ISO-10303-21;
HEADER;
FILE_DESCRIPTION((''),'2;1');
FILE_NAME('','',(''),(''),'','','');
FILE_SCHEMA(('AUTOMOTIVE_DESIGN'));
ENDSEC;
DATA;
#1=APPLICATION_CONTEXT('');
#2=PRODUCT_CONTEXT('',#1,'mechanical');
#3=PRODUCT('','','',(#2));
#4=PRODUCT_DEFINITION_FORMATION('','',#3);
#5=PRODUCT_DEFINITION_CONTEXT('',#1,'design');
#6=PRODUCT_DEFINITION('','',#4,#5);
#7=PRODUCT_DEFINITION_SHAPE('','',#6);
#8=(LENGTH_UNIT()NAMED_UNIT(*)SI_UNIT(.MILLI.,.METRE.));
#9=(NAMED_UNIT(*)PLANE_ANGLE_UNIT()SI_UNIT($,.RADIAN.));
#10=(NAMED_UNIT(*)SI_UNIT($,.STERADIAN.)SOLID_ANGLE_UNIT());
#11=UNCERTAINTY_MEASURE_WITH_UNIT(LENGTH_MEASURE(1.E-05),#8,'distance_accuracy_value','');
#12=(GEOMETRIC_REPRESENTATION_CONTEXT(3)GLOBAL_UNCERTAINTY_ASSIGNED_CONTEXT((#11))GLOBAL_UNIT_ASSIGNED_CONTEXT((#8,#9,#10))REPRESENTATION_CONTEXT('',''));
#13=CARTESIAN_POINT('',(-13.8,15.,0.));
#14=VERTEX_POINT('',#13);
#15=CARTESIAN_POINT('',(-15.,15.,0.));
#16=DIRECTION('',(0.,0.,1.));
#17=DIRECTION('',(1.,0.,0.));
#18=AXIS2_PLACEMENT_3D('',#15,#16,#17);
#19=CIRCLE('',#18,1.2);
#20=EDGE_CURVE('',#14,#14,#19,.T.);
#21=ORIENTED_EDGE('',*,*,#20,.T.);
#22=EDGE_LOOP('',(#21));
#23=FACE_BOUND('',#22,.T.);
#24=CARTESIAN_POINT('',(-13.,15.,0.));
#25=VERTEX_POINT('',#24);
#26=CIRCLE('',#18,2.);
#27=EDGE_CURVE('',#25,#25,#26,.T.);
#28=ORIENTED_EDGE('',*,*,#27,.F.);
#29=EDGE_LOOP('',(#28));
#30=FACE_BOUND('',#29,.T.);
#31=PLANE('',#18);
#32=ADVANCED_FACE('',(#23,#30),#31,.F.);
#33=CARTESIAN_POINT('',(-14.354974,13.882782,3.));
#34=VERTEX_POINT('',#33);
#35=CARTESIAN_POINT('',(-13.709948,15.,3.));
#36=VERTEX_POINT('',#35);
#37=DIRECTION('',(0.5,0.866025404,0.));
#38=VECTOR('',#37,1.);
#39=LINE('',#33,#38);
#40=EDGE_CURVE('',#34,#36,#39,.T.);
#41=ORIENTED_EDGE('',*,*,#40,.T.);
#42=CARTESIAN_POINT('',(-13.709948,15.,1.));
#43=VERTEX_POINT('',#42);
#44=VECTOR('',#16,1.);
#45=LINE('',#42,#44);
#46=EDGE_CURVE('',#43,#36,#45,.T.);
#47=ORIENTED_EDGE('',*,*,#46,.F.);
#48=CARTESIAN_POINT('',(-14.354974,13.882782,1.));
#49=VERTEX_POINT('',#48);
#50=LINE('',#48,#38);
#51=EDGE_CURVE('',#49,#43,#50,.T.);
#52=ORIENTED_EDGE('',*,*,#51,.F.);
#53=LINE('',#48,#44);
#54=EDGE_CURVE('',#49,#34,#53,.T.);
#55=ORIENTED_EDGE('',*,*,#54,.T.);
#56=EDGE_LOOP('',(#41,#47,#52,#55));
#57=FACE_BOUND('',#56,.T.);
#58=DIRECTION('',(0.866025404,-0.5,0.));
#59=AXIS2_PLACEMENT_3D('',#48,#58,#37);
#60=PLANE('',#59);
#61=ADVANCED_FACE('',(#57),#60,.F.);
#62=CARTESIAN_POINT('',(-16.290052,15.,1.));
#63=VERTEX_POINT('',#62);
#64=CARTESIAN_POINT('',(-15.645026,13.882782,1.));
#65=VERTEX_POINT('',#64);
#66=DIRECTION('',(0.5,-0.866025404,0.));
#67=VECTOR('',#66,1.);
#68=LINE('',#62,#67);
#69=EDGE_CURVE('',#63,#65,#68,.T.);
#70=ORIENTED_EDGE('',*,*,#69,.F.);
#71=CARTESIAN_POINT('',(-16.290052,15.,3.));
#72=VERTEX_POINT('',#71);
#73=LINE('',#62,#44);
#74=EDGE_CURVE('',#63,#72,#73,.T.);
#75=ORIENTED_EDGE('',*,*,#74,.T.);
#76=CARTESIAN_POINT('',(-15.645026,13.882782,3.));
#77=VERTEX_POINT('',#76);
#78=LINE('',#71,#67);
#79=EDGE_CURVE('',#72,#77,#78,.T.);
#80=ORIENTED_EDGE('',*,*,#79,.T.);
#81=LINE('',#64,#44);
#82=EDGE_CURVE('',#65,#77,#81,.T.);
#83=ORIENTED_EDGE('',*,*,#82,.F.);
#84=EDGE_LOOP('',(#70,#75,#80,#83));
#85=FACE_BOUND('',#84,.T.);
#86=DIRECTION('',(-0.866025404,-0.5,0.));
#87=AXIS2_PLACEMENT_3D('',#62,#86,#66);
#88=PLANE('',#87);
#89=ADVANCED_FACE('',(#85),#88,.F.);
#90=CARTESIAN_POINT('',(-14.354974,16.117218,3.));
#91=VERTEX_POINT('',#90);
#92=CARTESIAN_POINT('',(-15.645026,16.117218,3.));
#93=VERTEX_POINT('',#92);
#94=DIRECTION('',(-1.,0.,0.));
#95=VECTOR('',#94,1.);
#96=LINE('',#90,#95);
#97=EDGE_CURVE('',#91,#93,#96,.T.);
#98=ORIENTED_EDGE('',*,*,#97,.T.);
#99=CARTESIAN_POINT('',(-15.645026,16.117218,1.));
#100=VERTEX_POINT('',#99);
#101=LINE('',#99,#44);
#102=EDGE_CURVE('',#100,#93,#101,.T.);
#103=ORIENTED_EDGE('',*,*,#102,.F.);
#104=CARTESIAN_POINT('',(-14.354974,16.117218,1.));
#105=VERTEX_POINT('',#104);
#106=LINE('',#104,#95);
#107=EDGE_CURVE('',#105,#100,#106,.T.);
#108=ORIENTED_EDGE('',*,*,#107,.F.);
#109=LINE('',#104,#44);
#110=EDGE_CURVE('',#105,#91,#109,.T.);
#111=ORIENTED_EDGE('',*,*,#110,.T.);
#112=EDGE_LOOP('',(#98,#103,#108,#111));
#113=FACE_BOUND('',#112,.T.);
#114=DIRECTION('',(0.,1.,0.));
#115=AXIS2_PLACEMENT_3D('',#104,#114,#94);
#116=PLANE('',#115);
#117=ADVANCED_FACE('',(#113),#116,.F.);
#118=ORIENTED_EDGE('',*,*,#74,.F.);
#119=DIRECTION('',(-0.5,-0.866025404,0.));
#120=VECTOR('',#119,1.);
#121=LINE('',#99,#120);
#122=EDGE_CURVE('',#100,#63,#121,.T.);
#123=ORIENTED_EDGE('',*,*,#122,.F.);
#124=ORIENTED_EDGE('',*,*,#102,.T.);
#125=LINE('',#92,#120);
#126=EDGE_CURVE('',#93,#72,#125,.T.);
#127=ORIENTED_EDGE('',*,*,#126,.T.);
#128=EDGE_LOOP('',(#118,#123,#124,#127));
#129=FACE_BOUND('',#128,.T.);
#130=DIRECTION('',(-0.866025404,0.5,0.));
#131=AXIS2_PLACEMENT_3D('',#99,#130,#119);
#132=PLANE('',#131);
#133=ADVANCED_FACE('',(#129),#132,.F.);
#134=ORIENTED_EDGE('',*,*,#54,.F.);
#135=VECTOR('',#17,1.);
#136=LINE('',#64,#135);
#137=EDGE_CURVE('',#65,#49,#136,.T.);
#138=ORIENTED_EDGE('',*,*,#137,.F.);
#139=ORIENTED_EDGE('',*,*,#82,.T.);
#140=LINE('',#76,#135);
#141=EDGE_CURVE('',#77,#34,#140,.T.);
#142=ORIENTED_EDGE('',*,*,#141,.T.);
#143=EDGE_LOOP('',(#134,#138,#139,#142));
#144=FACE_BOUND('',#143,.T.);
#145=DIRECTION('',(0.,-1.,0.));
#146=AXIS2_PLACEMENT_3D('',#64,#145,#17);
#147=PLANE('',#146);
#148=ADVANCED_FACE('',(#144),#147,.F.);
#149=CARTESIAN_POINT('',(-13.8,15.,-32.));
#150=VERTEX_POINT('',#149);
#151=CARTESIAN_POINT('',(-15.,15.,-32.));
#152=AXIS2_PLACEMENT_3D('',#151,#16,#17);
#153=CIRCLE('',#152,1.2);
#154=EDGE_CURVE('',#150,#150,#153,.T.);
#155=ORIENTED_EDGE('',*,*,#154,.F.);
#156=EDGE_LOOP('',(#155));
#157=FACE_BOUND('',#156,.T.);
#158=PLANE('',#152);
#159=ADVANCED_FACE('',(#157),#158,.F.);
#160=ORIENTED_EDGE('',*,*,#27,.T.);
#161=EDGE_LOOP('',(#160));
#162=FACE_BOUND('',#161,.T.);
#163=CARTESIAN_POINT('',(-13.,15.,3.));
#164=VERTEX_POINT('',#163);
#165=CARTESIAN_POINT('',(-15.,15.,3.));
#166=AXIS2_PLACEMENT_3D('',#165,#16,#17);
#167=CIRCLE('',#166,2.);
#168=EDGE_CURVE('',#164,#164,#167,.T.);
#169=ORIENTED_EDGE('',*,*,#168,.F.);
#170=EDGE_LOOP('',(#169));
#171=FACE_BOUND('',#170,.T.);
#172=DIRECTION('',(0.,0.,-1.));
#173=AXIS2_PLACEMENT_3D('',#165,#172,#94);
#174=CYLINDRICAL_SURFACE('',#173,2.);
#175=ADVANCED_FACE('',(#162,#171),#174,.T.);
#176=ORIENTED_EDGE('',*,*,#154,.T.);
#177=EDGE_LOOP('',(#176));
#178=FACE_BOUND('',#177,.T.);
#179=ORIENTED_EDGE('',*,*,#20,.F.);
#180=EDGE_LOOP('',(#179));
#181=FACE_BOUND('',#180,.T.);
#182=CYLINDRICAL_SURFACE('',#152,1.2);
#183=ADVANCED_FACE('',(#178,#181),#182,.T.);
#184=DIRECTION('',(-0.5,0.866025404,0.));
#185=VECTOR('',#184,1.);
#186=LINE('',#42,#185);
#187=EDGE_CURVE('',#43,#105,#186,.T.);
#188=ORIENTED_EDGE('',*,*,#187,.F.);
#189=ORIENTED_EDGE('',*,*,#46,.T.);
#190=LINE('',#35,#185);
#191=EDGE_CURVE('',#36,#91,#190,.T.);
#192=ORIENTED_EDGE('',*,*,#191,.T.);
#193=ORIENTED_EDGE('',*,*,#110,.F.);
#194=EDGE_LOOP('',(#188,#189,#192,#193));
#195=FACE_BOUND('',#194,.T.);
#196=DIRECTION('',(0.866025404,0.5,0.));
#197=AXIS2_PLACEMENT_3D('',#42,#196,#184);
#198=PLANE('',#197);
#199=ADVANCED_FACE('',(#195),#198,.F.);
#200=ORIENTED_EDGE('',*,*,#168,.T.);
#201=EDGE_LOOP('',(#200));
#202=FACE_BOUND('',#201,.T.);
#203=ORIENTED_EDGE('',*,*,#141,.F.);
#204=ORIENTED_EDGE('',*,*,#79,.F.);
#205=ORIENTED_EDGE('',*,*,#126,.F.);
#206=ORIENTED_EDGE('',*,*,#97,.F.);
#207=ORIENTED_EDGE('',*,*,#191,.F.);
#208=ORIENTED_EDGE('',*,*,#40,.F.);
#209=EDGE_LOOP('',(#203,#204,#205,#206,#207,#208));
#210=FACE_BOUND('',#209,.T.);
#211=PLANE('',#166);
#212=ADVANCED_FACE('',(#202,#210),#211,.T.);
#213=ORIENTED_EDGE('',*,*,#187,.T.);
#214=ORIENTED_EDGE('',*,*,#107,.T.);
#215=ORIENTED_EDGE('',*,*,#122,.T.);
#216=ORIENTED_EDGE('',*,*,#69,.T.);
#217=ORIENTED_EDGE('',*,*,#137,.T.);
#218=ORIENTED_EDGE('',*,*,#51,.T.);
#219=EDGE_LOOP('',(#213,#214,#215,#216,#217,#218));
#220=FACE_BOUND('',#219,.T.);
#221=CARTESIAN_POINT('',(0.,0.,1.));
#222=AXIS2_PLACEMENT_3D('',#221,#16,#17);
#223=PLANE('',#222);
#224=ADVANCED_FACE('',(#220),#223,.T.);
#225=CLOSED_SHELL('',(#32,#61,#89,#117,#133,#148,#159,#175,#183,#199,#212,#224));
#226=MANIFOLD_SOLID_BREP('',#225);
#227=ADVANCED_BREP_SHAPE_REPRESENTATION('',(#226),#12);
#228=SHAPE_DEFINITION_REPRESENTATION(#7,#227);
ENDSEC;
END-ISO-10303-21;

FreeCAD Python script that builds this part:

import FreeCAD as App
import Part
import Sketcher
Q = App.Units.Quantity

doc = App.newDocument("Part")
body = doc.addObject("PartDesign::Body", "Body")

# Sketch on XY plane
sketch1 = body.newObject("Sketcher::SketchObject", "Sketch")
sketch1.AttachmentSupport = (doc.getObject("XY_Plane"), [""])
sketch1.MapMode = "FlatFace"
sketch1.addGeometry(Part.Circle(App.Vector(-15, 15, 0), App.Vector(0, 0, 1), 1.2), False)
sketch1.addConstraint(Sketcher.Constraint("Diameter", 0, Q("2.4 mm")))
sketch1.addConstraint(Sketcher.Constraint("DistanceX", 0, 3, -1, 1, Q("15 mm")))
sketch1.addConstraint(Sketcher.Constraint("DistanceY", -1, 1, 0, 3, Q("15 mm")))
pad1 = body.newObject("PartDesign::Pad", "Pad")
pad1.Profile = sketch1
pad1.Length = 32
pad1.Reversed = True

# Sketch on XY plane
sketch2 = body.newObject("Sketcher::SketchObject", "Sketch001")
sketch2.AttachmentSupport = (doc.getObject("XY_Plane"), [""])
sketch2.MapMode = "FlatFace"
sketch2.addGeometry(Part.Circle(App.Vector(-15, 15, 0), App.Vector(0, 0, 1), 2), False)
sketch2.addConstraint(Sketcher.Constraint("Diameter", 0, Q("4 mm")))
sketch2.addConstraint(Sketcher.Constraint("DistanceX", 0, 3, -1, 1, Q("15 mm")))
sketch2.addConstraint(Sketcher.Constraint("DistanceY", -1, 1, 0, 3, Q("15 mm")))
pad2 = body.newObject("PartDesign::Pad", "Pad001")
pad2.Profile = sketch2
pad2.Length = 3

# Sketch on XY plane
sketch3 = body.newObject("Sketcher::SketchObject", "Sketch002")
sketch3.AttachmentSupport = (doc.getObject("XY_Plane"), [""])
sketch3.MapMode = "FlatFace"
sketch3.AttachmentOffset = App.Placement(App.Vector(0, 0, 3), App.Rotation())
sketch3.addGeometry(Part.LineSegment(App.Vector(-13.7, 15, 0), App.Vector(-14.4, 16.1, 0)), False)
sketch3.addGeometry(Part.LineSegment(App.Vector(-14.4, 16.1, 0), App.Vector(-15.6, 16.1, 0)), False)
sketch3.addGeometry(Part.LineSegment(App.Vector(-15.6, 16.1, 0), App.Vector(-16.3, 15, 0)), False)
sketch3.addGeometry(Part.LineSegment(App.Vector(-16.3, 15, 0), App.Vector(-15.6, 13.9, 0)), False)
sketch3.addGeometry(Part.LineSegment(App.Vector(-15.6, 13.9, 0), App.Vector(-14.4, 13.9, 0)), False)
sketch3.addGeometry(Part.LineSegment(App.Vector(-14.4, 13.9, 0), App.Vector(-13.7, 15, 0)), False)
sketch3.addConstraint(Sketcher.Constraint("Coincident", 0, 2, 1, 1))
sketch3.addConstraint(Sketcher.Constraint("Coincident", 1, 2, 2, 1))
sketch3.addConstraint(Sketcher.Constraint("Coincident", 2, 2, 3, 1))
sketch3.addConstraint(Sketcher.Constraint("Coincident", 3, 2, 4, 1))
sketch3.addConstraint(Sketcher.Constraint("Coincident", 4, 2, 5, 1))
sketch3.addConstraint(Sketcher.Constraint("Coincident", 5, 2, 0, 1))
sketch3.addConstraint(Sketcher.Constraint("Horizontal", 1))
sketch3.addConstraint(Sketcher.Constraint("Horizontal", 4))
sketch3.addConstraint(Sketcher.Constraint("Parallel", 0, 3))
sketch3.addConstraint(Sketcher.Constraint("Parallel", 2, 5))
sketch3.addConstraint(Sketcher.Constraint("Horizontal", 2, 2, 5, 2))
sketch3.addConstraint(Sketcher.Constraint("Vertical", 1, 2, 3, 2))
sketch3.addConstraint(Sketcher.Constraint("Vertical", 0, 2, 4, 2))
sketch3.addConstraint(Sketcher.Constraint("Angle", 0, Q("120 deg")))
sketch3.addConstraint(Sketcher.Constraint("DistanceY", -1, 1, 2, 2, Q("15 mm")))
sketch3.addConstraint(Sketcher.Constraint("DistanceX", 1, 2, 1, 1, Q("1.290052 mm")))
sketch3.addConstraint(Sketcher.Constraint("DistanceY", -1, 1, 0, 2, Q("16.117218 mm")))
sketch3.addConstraint(Sketcher.Constraint("DistanceX", 0, 2, -1, 1, Q("14.354974 mm")))
pocket1 = body.newObject("PartDesign::Pocket", "Pocket")
pocket1.Profile = sketch3
pocket1.Length = 2

doc.recompute()
